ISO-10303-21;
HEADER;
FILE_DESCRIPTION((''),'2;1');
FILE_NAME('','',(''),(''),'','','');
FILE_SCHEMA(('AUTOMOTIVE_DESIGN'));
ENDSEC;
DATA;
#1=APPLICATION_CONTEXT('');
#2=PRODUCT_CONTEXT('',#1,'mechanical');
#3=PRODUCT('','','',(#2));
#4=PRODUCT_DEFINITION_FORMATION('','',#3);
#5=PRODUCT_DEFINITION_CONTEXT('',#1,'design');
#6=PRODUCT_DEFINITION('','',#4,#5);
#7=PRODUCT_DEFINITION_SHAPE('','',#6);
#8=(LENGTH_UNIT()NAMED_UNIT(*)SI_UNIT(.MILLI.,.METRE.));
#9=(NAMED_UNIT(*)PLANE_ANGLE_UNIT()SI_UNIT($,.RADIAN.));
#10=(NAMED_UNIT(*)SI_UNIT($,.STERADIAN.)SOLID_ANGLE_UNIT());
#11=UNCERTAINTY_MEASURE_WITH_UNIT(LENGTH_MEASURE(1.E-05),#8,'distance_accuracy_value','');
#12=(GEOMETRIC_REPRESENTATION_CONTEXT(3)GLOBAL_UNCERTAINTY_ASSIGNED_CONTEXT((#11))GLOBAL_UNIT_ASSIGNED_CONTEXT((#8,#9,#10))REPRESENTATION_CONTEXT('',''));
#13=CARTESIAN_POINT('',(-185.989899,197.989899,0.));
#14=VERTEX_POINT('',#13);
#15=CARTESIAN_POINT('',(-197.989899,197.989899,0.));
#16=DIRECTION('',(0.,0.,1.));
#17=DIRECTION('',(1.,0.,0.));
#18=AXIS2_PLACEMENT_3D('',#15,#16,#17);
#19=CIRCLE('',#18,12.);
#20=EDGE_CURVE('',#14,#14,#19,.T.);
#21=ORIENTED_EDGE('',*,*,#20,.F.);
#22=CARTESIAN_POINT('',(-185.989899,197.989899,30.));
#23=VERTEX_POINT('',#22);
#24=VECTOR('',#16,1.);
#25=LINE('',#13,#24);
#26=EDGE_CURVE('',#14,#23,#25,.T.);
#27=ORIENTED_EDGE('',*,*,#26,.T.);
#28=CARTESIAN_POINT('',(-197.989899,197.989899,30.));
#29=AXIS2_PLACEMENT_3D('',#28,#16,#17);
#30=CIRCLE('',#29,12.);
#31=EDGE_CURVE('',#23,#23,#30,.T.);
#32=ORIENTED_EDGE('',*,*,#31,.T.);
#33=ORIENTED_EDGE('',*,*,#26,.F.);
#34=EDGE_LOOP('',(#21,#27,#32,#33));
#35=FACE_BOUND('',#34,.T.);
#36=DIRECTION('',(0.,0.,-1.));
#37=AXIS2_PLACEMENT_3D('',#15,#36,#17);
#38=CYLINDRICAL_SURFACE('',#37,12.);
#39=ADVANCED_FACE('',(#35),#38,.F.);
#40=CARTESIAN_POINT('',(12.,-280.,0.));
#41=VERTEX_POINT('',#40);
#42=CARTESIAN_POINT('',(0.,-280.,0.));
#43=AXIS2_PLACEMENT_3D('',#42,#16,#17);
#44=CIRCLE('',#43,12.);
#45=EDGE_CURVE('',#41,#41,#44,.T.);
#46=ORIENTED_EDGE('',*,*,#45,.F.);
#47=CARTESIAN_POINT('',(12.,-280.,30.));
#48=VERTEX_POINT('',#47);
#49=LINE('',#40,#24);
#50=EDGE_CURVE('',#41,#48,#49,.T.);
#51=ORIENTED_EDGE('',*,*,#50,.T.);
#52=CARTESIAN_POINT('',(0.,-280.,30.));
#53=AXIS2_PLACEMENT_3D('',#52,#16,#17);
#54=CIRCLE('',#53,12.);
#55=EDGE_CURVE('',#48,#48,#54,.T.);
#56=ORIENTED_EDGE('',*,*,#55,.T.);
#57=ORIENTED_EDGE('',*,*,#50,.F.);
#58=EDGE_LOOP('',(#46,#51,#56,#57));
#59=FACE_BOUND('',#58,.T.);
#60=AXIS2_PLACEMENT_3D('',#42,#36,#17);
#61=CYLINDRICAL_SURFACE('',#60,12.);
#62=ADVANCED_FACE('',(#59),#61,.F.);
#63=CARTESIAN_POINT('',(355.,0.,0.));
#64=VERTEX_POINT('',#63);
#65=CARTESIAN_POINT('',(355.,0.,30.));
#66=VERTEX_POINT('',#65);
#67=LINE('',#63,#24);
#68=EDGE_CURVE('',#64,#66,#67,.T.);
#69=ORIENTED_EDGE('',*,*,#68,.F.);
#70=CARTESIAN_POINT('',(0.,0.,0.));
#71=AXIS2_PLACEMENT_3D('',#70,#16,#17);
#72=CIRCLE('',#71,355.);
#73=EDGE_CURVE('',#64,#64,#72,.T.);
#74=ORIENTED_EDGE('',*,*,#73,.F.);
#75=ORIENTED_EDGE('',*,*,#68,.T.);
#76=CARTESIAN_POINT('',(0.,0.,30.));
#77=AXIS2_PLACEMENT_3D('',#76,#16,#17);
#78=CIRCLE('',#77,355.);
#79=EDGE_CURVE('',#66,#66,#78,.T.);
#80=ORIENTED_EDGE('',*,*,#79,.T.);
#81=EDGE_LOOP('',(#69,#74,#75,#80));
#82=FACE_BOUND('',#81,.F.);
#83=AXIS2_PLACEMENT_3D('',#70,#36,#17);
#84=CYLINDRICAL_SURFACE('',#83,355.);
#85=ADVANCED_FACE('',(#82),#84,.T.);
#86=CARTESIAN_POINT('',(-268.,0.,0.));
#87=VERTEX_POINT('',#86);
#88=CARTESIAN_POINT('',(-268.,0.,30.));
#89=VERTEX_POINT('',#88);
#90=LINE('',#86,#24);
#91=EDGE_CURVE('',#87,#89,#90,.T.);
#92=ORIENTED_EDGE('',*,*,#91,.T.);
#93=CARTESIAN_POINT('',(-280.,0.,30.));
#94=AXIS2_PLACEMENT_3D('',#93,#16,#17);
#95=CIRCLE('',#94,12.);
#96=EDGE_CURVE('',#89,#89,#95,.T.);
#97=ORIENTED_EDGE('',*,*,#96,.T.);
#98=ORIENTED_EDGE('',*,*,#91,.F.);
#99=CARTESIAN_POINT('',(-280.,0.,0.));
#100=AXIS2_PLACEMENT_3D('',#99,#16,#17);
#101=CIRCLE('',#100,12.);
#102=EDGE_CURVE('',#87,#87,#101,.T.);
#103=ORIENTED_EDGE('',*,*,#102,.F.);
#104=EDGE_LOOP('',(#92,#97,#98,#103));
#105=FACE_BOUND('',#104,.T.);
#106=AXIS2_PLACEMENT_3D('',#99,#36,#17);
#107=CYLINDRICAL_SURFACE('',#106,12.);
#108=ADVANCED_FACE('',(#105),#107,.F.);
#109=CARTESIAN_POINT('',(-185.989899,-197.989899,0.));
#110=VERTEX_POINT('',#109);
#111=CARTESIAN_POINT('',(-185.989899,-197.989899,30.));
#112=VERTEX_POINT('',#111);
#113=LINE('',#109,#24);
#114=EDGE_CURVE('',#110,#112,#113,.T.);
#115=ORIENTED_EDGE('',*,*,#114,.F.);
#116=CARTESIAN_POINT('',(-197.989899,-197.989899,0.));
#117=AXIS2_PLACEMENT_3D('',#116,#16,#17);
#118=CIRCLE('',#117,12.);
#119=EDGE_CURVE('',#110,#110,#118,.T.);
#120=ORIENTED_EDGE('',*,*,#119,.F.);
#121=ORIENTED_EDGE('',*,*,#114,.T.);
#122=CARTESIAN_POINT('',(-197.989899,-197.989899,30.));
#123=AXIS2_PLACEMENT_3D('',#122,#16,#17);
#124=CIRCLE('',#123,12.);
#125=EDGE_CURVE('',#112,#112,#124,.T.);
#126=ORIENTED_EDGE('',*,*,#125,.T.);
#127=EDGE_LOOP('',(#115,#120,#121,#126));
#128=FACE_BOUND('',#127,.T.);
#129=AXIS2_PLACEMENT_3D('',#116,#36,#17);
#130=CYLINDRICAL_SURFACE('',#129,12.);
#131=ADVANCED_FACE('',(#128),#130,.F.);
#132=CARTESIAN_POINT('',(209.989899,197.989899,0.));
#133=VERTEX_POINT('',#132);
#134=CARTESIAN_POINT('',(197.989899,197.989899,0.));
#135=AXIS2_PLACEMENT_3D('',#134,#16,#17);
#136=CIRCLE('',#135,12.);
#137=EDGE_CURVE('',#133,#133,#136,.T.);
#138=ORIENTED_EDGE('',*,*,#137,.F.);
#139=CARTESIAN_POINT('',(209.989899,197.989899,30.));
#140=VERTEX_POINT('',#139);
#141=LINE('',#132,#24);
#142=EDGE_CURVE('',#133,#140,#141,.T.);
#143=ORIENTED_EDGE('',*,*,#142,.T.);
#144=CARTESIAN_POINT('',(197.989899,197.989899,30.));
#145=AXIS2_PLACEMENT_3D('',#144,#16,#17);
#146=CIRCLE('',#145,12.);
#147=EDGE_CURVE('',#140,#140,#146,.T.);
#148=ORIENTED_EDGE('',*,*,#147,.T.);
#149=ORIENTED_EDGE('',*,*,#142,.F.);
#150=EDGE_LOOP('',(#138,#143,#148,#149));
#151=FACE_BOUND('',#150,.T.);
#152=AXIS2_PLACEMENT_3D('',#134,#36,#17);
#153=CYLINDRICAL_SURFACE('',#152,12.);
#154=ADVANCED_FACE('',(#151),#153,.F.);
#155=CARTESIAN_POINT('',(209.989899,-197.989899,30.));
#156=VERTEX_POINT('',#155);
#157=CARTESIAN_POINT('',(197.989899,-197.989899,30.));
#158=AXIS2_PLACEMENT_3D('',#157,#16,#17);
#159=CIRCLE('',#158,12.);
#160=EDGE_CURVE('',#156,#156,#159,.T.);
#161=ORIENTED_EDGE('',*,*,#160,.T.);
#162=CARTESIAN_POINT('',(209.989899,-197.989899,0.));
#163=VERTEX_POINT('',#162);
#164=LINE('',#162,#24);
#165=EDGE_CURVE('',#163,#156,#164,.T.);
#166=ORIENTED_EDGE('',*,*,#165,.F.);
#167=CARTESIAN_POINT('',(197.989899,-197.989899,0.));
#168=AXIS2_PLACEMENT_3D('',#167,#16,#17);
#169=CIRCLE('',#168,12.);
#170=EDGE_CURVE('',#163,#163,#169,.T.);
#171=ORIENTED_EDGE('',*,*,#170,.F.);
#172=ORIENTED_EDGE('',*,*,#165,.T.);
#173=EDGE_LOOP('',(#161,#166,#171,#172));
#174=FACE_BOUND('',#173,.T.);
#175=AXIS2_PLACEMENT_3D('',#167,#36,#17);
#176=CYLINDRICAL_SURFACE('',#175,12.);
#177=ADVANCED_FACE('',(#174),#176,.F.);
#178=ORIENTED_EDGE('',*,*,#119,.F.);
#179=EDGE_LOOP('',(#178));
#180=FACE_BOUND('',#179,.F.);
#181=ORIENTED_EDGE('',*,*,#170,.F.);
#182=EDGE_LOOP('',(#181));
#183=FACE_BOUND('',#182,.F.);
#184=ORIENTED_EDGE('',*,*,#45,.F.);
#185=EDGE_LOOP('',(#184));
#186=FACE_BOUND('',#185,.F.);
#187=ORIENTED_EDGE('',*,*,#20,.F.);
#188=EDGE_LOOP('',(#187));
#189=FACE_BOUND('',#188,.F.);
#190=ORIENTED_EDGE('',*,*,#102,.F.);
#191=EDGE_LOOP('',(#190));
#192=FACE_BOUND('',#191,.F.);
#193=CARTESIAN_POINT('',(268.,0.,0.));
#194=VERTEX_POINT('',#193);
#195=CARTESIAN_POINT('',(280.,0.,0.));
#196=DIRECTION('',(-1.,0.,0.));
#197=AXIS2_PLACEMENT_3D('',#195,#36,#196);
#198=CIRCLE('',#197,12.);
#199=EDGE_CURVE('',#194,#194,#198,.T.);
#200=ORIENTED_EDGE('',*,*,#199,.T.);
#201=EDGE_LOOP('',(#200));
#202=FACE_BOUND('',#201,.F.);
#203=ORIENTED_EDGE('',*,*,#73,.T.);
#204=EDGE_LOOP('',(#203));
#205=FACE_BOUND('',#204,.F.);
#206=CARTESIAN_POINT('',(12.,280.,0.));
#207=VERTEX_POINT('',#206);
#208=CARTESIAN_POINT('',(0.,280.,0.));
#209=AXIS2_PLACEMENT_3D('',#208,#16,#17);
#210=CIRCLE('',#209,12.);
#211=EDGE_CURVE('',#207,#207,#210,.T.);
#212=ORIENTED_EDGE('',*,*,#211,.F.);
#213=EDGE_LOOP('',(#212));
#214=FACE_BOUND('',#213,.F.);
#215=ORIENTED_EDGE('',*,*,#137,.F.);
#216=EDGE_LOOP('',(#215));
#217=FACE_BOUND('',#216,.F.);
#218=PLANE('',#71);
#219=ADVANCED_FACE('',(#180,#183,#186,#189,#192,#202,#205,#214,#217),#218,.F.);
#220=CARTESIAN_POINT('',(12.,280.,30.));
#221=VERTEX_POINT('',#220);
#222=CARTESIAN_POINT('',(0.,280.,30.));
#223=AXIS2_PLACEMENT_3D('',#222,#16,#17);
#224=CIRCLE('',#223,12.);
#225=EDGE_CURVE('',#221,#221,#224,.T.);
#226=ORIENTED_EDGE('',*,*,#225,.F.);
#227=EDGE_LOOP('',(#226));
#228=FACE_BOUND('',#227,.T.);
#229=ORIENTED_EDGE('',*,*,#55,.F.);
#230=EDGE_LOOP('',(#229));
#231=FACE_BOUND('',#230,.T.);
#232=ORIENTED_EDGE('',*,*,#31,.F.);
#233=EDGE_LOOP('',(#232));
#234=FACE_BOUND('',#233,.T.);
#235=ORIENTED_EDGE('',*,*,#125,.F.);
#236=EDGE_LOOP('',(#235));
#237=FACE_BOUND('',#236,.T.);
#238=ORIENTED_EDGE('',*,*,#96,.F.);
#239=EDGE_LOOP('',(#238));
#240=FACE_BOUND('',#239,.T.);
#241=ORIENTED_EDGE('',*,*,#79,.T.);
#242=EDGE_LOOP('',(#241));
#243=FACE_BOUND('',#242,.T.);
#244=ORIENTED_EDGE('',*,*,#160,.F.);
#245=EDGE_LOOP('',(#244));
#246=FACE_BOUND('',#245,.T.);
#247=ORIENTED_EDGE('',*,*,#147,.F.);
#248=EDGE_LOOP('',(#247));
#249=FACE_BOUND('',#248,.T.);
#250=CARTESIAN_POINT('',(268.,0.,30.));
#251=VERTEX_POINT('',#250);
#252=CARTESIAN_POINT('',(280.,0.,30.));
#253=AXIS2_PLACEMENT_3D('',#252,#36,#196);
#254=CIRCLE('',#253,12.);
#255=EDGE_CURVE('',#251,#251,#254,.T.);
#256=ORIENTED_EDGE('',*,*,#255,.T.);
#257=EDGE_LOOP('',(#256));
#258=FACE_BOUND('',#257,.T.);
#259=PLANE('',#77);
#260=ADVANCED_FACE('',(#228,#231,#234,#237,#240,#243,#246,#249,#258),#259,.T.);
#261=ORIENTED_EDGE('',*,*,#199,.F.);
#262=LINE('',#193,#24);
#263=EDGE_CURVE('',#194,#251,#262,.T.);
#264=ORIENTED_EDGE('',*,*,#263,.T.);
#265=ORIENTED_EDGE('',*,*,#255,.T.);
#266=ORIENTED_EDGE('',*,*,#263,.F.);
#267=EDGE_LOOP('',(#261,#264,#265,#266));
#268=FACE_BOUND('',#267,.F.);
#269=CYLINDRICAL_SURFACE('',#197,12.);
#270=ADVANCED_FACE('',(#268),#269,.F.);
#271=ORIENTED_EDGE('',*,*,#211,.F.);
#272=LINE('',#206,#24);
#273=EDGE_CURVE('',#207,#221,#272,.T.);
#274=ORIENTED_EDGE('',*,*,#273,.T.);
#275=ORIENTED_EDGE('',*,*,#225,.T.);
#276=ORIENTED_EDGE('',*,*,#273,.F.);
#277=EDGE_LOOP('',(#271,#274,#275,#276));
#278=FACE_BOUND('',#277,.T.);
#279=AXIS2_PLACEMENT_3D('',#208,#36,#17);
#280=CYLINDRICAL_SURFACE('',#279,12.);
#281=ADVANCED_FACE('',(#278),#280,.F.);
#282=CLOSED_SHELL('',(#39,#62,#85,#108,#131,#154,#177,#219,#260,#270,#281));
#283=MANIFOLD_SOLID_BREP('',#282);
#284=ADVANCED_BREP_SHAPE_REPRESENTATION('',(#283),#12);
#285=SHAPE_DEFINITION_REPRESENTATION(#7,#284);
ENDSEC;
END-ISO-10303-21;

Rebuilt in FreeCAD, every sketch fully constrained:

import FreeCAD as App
import Part
import Sketcher

doc = App.newDocument("Part")
params = doc.addObject("Spreadsheet::Sheet", "Params")
for row, (alias, value) in enumerate([
    ("sketch1_diameter", "710 mm"),
    ("sketch1_diameter2", "24 mm"),
    ("pad1_length", "30 mm"),
], start=1):
    params.set(f"A{row}", alias)
    params.set(f"B{row}", "=" + value)
    params.setAlias(f"B{row}", alias)

body = doc.addObject("PartDesign::Body", "Body")

sketch1 = body.newObject("Sketcher::SketchObject", "Sketch")
sketch1.AttachmentSupport = (doc.getObject("XY_Plane"), [""])
sketch1.MapMode = "FlatFace"
sketch1.addGeometry([
    Part.Circle(App.Vector(0, 0, 0), App.Vector(0, 0, 1), 355),
    Part.Circle(App.Vector(-197.989899, -197.989899, 0), App.Vector(0, 0, 1), 12),
    Part.Circle(App.Vector(0, -280, 0), App.Vector(0, 0, 1), 12),
    Part.Circle(App.Vector(197.989899, -197.989899, 0), App.Vector(0, 0, 1), 12),
    Part.Circle(App.Vector(-280, 0, 0), App.Vector(0, 0, 1), 12),
    Part.Circle(App.Vector(-197.989899, 197.989899, 0), App.Vector(0, 0, 1), 12),
    Part.Circle(App.Vector(280, 0, 0), App.Vector(0, 0, 1), 12),
    Part.Circle(App.Vector(0, 280, 0), App.Vector(0, 0, 1), 12),
    Part.Circle(App.Vector(197.989899, 197.989899, 0), App.Vector(0, 0, 1), 12),
], False)
sketch1.addConstraint([
    Sketcher.Constraint("Coincident", 0, 3, -1, 1),
    Sketcher.Constraint("Equal", 1, 2),
    Sketcher.Constraint("Equal", 2, 3),
    Sketcher.Constraint("Equal", 3, 4),
    Sketcher.Constraint("Equal", 4, 5),
    Sketcher.Constraint("Equal", 5, 6),
    Sketcher.Constraint("Equal", 6, 7),
    Sketcher.Constraint("Equal", 7, 8),
    Sketcher.Constraint("Symmetric", 3, 3, 5, 3, -1, 1),
    Sketcher.Constraint("Symmetric", 4, 3, 6, 3, -1, 1),
    Sketcher.Constraint("Symmetric", 2, 3, 7, 3, -1, 1),
    Sketcher.Constraint("Symmetric", 1, 3, 8, 3, -1, 1),
    Sketcher.Constraint("Symmetric", 1, 3, 3, 3, -2),
    Sketcher.Constraint("PointOnObject", 2, 3, -2),
    Sketcher.Constraint("PointOnObject", 4, 3, -1),
    Sketcher.Constraint("Diameter", 0, 710.0),
    Sketcher.Constraint("Diameter", 1, 24.0),
    Sketcher.Constraint("DistanceY", 2, 3, -1, 1, 280.0),
    Sketcher.Constraint("DistanceX", 4, 3, -1, 1, 280.0),
    Sketcher.Constraint("DistanceX", 1, 3, -1, 1, 197.989899),
    Sketcher.Constraint("DistanceY", 1, 3, -1, 1, 197.989899),
])
sketch1.setExpression("Constraints[15]", "Params.sketch1_diameter")
sketch1.setExpression("Constraints[16]", "Params.sketch1_diameter2")
pad1 = body.newObject("PartDesign::Pad", "Pad")
pad1.Profile = sketch1
pad1.setExpression("Length", "Params.pad1_length")

doc.recompute()
